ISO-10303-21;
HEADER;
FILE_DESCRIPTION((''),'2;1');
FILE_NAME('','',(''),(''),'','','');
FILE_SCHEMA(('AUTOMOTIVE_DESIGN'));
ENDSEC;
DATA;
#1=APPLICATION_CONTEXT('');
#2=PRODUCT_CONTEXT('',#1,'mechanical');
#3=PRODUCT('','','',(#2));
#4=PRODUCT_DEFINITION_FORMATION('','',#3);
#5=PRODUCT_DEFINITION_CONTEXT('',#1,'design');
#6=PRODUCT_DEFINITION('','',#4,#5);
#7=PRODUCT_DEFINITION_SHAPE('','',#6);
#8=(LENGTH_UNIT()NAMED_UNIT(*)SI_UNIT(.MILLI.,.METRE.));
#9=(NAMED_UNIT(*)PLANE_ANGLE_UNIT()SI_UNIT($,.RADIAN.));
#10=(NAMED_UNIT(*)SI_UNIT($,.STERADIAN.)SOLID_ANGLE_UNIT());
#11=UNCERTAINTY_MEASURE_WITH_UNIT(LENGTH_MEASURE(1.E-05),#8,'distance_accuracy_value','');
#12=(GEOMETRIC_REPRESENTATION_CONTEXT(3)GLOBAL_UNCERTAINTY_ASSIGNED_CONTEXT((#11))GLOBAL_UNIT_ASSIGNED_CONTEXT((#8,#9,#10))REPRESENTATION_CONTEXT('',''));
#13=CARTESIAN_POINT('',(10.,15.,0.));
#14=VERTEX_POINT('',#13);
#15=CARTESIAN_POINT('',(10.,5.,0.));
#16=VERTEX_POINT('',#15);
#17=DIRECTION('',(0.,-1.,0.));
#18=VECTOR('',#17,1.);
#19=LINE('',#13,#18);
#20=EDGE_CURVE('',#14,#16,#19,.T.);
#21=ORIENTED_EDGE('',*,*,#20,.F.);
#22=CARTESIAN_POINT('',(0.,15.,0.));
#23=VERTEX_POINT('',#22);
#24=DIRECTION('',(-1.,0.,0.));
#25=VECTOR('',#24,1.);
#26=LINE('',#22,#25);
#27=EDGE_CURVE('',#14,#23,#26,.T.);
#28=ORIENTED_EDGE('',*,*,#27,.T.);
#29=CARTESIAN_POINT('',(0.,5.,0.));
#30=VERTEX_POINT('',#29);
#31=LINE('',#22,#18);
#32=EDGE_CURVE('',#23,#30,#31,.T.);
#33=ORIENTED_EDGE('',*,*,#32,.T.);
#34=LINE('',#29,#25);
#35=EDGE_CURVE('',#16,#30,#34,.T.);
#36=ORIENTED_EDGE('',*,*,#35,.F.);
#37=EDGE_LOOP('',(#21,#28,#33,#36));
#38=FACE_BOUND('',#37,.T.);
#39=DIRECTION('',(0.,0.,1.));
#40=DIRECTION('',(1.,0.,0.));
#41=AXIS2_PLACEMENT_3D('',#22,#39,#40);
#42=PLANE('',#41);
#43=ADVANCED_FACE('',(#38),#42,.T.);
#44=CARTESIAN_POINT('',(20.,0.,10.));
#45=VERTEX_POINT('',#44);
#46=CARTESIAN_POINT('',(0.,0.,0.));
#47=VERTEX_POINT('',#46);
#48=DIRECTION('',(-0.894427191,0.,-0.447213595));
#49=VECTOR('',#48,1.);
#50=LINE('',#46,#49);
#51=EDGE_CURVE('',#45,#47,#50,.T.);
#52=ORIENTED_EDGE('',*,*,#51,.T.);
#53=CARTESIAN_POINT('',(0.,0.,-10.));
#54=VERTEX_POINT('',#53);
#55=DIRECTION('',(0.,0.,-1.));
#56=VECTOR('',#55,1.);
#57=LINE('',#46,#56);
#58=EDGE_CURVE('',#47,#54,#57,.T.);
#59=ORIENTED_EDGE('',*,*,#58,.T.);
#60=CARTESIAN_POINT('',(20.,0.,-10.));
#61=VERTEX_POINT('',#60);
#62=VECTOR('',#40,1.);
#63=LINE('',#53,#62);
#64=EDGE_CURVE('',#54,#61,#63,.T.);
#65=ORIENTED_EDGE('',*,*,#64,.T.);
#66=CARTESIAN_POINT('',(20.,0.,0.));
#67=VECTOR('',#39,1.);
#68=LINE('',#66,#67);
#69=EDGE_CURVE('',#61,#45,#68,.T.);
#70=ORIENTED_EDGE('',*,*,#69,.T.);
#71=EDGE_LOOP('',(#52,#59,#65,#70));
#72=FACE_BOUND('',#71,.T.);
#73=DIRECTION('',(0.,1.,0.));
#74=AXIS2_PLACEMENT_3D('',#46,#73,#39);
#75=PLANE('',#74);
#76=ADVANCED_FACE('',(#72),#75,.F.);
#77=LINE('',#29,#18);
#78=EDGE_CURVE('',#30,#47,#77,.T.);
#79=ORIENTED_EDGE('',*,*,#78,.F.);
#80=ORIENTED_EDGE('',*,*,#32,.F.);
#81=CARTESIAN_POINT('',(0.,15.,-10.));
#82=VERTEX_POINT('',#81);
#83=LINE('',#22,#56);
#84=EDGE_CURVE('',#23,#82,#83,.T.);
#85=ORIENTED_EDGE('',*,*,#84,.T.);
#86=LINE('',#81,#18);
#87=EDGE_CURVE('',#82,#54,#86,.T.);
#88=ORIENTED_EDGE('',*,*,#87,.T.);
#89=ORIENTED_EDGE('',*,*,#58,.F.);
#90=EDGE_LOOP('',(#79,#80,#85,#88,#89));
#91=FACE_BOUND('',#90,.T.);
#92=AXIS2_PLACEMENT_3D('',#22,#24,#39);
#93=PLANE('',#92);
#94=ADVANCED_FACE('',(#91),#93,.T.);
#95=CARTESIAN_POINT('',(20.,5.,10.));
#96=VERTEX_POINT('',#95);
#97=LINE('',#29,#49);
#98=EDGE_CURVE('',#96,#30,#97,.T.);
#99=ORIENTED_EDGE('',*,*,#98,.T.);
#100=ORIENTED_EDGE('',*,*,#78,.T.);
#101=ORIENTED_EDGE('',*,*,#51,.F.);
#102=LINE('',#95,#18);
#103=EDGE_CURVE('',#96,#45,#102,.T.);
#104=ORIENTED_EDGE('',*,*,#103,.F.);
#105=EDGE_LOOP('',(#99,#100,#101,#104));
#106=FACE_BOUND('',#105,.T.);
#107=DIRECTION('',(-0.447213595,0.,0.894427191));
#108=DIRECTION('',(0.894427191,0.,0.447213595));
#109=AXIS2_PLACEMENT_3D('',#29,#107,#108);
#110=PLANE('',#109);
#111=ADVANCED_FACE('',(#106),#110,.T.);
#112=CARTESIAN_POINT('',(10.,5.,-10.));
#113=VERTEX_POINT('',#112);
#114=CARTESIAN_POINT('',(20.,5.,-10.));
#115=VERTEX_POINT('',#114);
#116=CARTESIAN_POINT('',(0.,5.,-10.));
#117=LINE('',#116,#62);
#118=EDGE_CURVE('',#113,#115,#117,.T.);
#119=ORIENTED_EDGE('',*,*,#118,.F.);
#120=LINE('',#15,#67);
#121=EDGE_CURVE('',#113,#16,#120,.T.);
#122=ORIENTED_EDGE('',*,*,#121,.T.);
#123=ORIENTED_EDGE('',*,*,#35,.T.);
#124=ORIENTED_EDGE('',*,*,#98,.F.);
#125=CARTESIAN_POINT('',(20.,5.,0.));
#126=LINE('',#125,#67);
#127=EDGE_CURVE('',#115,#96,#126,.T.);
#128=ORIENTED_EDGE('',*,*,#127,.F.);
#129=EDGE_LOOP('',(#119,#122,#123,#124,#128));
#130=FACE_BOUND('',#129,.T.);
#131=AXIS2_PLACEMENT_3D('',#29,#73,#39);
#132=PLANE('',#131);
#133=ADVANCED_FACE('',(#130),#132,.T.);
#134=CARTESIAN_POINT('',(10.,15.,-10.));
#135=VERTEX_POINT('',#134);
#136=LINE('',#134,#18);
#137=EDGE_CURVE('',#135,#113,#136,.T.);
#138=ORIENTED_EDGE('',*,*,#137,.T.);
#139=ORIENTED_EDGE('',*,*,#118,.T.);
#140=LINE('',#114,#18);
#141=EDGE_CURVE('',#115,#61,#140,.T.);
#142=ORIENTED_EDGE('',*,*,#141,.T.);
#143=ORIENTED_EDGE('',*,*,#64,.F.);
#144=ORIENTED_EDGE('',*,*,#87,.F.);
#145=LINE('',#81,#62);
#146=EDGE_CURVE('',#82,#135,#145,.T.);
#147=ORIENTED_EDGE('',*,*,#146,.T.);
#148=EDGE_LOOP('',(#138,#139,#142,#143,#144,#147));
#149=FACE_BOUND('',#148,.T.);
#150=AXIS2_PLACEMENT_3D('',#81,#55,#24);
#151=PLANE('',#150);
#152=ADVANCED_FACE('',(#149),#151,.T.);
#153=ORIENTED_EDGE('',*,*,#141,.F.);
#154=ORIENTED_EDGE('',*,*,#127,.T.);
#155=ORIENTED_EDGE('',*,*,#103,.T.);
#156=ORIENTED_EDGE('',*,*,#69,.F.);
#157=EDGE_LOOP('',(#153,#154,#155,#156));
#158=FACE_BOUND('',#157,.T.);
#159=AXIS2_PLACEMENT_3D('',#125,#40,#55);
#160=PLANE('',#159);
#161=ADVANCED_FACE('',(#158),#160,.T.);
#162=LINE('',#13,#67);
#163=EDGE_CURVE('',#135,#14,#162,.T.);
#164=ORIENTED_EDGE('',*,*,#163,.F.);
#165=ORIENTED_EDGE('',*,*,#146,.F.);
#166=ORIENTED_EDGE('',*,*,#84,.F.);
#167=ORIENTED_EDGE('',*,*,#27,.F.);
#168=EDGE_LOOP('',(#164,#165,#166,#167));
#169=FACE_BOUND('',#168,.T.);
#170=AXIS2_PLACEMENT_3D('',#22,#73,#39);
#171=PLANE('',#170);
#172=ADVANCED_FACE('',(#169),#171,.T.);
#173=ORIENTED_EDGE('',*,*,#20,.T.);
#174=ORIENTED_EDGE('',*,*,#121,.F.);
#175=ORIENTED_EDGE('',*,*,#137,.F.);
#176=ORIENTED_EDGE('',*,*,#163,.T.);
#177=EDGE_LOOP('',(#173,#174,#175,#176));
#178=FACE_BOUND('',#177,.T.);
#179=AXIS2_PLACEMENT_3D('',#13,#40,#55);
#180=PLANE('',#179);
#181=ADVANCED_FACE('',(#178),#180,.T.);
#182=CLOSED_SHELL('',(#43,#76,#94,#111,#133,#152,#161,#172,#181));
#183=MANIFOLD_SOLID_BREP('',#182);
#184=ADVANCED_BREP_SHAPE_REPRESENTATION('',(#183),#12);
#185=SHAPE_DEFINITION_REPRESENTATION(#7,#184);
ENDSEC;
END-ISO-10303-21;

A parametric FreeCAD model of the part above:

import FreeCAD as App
import Part
import Sketcher
from FreeCAD import Vector
Q = App.Units.Quantity

doc = App.newDocument("Part")
body = doc.addObject("PartDesign::Body", "Body")

# Sketch on XZ plane
sketch1 = body.newObject("Sketcher::SketchObject", "Sketch")
sketch1.AttachmentSupport = (doc.getObject("XZ_Plane"), [""])
sketch1.MapMode = "FlatFace"
sketch1.addGeometry([
    Part.LineSegment(Vector(0, -10, 0), Vector(0, 0, 0)),
    Part.LineSegment(Vector(0, 0, 0), Vector(10, 0, 0)),
    Part.LineSegment(Vector(10, 0, 0), Vector(10, -10, 0)),
    Part.LineSegment(Vector(10, -10, 0), Vector(0, -10, 0)),
], False)
sketch1.addConstraint([
    Sketcher.Constraint("Coincident", 0, 2, 1, 1),
    Sketcher.Constraint("Coincident", 1, 2, 2, 1),
    Sketcher.Constraint("Coincident", 2, 2, 3, 1),
    Sketcher.Constraint("Coincident", 3, 2, 0, 1),
    Sketcher.Constraint("Vertical", 0),
    Sketcher.Constraint("Horizontal", 1),
    Sketcher.Constraint("Vertical", 2),
    Sketcher.Constraint("Horizontal", 3),
    Sketcher.Constraint("Coincident", 0, 2, -1, 1),
    Sketcher.Constraint("Equal", 3, 0),
    Sketcher.Constraint("DistanceX", 1, 1, 1, 2, Q("10 mm")),
])
pad1 = body.newObject("PartDesign::Pad", "Pad")
pad1.Profile = sketch1
pad1.Length = 15
pad1.Reversed = True

# Sketch on XZ plane
sketch2 = body.newObject("Sketcher::SketchObject", "Sketch001")
sketch2.AttachmentSupport = (doc.getObject("XZ_Plane"), [""])
sketch2.MapMode = "FlatFace"
sketch2.addGeometry([
    Part.LineSegment(Vector(10, 0, 0), Vector(0, 0, 0)),  # 0
    Part.LineSegment(Vector(0, 0, 0), Vector(20, 10, 0)),  # 1
    Part.LineSegment(Vector(20, 10, 0), Vector(20, -10, 0)),  # 2
    Part.LineSegment(Vector(20, -10, 0), Vector(10, -10, 0)),  # 3
    Part.LineSegment(Vector(10, -10, 0), Vector(10, 0, 0)),  # 4
], False)
sketch2.addConstraint([
    Sketcher.Constraint("Coincident", 0, 2, 1, 1),
    Sketcher.Constraint("Coincident", 1, 2, 2, 1),
    Sketcher.Constraint("Coincident", 2, 2, 3, 1),
    Sketcher.Constraint("Coincident", 3, 2, 4, 1),
    Sketcher.Constraint("Coincident", 4, 2, 0, 1),
    Sketcher.Constraint("Horizontal", 0),
    Sketcher.Constraint("Vertical", 2),
    Sketcher.Constraint("Horizontal", 3),
    Sketcher.Constraint("Vertical", 4),
    Sketcher.Constraint("Coincident", 0, 2, -1, 1),
    Sketcher.Constraint("Equal", 0, 3),
    Sketcher.Constraint("Equal", 3, 4),
    Sketcher.Constraint("DistanceX", 0, 2, 0, 1, Q("10 mm")),
    Sketcher.Constraint("DistanceY", 2, 2, 2, 1, Q("20 mm")),
])
pad2 = body.newObject("PartDesign::Pad", "Pad001")
pad2.Profile = sketch2
pad2.Length = 5
pad2.Reversed = True

doc.recompute()
